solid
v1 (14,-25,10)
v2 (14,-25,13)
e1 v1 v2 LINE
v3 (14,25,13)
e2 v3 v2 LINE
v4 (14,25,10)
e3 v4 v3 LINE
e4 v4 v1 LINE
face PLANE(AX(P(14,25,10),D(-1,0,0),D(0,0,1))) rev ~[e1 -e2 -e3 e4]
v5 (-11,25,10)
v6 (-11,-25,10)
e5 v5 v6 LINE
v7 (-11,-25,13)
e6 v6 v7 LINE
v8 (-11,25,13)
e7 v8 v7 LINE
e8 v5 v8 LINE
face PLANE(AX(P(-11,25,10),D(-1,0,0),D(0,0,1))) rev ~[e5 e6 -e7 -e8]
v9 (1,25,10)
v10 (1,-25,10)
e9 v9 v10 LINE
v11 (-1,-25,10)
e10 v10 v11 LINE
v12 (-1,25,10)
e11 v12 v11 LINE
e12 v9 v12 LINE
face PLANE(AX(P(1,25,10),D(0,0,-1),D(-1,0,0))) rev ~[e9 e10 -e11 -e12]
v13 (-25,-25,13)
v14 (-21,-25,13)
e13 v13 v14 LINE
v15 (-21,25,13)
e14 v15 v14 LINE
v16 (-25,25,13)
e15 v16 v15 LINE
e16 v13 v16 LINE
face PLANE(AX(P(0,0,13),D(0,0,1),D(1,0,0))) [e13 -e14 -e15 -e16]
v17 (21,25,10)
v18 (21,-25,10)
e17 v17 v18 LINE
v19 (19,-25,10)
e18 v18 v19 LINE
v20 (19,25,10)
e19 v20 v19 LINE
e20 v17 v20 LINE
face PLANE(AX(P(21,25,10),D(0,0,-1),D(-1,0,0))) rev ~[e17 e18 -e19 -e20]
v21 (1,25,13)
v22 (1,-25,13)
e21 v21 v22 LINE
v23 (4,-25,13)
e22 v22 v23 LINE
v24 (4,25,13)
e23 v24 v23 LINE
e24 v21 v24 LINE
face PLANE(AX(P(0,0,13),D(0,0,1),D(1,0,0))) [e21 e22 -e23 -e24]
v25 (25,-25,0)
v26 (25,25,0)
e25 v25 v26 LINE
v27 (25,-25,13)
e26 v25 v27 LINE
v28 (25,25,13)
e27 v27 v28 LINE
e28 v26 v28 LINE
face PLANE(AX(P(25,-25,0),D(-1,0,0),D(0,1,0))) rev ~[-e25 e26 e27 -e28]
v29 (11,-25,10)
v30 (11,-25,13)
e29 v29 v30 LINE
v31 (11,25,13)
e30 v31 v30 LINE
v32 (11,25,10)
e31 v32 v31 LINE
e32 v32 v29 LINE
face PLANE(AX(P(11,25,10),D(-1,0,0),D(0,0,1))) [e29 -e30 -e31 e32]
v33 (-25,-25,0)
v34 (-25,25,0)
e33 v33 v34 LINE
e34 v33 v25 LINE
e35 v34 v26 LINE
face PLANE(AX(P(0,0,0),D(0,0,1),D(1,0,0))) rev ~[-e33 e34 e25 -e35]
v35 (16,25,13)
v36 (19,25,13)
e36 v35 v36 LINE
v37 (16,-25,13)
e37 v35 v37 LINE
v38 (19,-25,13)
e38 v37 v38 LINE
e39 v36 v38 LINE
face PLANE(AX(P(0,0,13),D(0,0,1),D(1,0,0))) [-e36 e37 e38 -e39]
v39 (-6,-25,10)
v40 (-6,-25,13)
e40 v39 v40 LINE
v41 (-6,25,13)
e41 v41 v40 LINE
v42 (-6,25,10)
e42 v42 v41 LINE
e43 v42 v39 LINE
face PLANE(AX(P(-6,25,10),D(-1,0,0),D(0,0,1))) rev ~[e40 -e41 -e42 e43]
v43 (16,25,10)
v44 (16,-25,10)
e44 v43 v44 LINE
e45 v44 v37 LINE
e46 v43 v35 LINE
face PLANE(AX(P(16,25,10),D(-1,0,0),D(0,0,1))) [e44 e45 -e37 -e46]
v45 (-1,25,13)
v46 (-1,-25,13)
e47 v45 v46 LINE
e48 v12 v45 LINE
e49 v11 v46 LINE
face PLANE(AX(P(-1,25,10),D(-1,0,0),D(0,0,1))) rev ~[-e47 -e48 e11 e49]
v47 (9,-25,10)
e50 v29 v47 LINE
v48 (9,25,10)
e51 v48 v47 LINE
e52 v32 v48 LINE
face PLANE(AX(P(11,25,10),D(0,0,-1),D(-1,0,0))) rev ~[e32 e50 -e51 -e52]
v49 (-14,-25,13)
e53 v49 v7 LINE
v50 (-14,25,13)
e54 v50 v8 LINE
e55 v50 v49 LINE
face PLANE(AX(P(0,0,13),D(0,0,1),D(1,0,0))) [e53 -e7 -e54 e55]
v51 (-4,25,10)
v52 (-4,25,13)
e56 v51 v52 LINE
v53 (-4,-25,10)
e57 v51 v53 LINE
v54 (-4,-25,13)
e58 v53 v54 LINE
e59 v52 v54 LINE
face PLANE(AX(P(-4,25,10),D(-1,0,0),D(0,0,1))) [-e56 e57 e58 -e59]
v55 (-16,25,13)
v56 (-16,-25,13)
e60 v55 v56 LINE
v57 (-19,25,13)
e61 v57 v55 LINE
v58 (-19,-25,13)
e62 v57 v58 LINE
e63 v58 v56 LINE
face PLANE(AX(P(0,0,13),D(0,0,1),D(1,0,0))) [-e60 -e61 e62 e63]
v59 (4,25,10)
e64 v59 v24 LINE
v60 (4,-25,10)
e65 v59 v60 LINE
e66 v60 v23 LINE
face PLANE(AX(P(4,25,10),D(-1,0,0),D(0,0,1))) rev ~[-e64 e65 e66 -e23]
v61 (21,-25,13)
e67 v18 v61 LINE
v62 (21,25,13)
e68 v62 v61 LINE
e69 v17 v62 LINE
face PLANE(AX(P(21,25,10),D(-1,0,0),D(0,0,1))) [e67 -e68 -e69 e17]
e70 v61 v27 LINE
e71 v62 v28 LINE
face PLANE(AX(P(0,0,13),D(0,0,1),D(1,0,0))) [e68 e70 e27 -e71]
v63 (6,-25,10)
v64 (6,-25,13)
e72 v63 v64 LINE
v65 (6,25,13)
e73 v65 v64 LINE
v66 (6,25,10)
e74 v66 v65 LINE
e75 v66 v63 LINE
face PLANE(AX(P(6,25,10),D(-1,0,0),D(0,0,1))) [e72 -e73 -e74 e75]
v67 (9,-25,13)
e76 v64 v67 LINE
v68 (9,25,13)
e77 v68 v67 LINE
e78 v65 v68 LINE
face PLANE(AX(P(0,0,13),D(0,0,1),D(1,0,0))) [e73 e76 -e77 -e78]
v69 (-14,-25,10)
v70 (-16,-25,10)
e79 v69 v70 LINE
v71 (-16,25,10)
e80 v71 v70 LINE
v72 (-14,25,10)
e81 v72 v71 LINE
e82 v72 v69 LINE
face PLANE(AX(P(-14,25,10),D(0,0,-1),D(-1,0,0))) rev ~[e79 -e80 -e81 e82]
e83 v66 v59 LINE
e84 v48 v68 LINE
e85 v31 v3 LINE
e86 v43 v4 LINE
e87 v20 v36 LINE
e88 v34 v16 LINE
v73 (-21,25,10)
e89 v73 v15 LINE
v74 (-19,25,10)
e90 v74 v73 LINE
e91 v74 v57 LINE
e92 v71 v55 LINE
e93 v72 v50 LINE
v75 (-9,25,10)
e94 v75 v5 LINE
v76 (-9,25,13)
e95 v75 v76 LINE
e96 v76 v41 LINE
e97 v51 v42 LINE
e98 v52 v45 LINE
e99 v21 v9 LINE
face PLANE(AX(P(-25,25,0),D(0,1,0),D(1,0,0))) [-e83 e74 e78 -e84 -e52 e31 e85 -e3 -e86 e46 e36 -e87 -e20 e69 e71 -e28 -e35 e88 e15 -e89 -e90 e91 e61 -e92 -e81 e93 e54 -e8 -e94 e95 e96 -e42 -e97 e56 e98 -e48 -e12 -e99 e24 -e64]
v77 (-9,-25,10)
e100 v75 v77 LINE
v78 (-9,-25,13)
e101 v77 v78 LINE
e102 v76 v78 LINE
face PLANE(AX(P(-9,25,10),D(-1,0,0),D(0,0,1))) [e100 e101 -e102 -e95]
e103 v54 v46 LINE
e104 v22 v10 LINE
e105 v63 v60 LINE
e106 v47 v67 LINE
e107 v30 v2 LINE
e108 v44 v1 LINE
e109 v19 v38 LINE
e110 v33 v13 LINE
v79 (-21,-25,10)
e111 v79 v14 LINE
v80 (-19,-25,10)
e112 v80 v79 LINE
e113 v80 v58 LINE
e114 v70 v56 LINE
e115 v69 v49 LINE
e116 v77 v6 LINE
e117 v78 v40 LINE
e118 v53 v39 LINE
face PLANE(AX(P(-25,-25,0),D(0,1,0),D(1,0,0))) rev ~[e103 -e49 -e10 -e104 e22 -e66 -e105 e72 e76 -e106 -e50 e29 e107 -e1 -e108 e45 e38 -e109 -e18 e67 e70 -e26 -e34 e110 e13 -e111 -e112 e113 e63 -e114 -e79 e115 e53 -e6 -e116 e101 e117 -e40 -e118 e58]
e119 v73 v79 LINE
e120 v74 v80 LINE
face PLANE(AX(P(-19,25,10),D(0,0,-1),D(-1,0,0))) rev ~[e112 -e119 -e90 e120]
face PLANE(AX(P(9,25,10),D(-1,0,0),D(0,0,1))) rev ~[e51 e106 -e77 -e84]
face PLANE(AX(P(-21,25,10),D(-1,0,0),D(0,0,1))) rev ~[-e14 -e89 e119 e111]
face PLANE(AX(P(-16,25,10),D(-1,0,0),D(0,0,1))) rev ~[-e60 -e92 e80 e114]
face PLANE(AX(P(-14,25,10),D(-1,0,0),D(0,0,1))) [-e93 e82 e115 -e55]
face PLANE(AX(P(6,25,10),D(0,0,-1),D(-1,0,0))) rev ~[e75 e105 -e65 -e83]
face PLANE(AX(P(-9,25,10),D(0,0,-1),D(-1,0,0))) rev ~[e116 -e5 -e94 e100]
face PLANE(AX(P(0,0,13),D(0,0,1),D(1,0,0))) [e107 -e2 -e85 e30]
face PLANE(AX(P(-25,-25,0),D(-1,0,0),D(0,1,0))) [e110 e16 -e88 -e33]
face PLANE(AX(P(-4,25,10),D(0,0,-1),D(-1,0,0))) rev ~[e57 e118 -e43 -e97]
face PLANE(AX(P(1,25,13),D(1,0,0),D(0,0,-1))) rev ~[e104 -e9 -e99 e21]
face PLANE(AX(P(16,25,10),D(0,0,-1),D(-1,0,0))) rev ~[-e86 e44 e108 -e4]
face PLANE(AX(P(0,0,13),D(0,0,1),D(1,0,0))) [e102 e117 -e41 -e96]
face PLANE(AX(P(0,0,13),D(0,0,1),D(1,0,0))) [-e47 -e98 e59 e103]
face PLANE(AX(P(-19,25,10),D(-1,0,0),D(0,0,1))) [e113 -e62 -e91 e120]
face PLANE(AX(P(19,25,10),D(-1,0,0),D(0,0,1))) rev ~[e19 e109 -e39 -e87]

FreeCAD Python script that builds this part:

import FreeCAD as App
import Part
import Sketcher
Q = App.Units.Quantity


def add_polygon(sketch, points):
    """Adds a closed chain of lines whose ends are joined by coincident constraints."""
    first, n = sketch.GeometryCount, len(points)
    for a, b in zip(points, points[1:] + points[:1]):
        sketch.addGeometry(Part.LineSegment(App.Vector(*a, 0), App.Vector(*b, 0)), False)
    for i in range(n):
        sketch.addConstraint(Sketcher.Constraint("Coincident", first + i, 2, first + (i + 1) % n, 1))

doc = App.newDocument("Part")
body = doc.addObject("PartDesign::Body", "Body")

# Sketch on XY plane
sketch1 = body.newObject("Sketcher::SketchObject", "Sketch")
sketch1.AttachmentSupport = (doc.getObject("XY_Plane"), [""])
sketch1.MapMode = "FlatFace"
add_polygon(sketch1, [(-25, 25), (-25, -25), (25, -25), (25, 25)])  # lines 0-3
sketch1.addConstraint([
    Sketcher.Constraint("Vertical", 0),
    Sketcher.Constraint("Horizontal", 1),
    Sketcher.Constraint("Vertical", 2),
    Sketcher.Constraint("Horizontal", 3),
    Sketcher.Constraint("Symmetric", 0, 2, 2, 2, -1, 1),
    Sketcher.Constraint("Equal", 3, 0),
    Sketcher.Constraint("DistanceX", 1, 1, 1, 2, Q("50 mm")),
])
pad1 = body.newObject("PartDesign::Pad", "Pad")
pad1.Profile = sketch1
pad1.Length = 13

# Sketch on XZ plane
sketch2 = body.newObject("Sketcher::SketchObject", "Sketch001")
sketch2.AttachmentSupport = (doc.getObject("XZ_Plane"), [""])
sketch2.MapMode = "FlatFace"
sketch2.AttachmentOffset = App.Placement(App.Vector(0, 0, -25), App.Rotation())
add_polygon(sketch2, [(21, 13), (21, 10), (19, 10), (19, 13)])  # lines 0-3
add_polygon(sketch2, [(16, 13), (16, 10), (14, 10), (14, 13)])  # lines 4-7
add_polygon(sketch2, [(11, 13), (11, 10), (9, 10), (9, 13)])  # lines 8-11
add_polygon(sketch2, [(6, 13), (6, 10), (4, 10), (4, 13)])  # lines 12-15
add_polygon(sketch2, [(-1, 13), (1, 13), (1, 10), (-1, 10)])  # lines 16-19
add_polygon(sketch2, [(-4, 13), (-4, 10), (-6, 10), (-6, 13)])  # lines 20-23
add_polygon(sketch2, [(-9, 13), (-9, 10), (-11, 10), (-11, 13)])  # lines 24-27
add_polygon(sketch2, [(-14, 13), (-14, 10), (-16, 10), (-16, 13)])  # lines 28-31
add_polygon(sketch2, [(-19, 13), (-19, 10), (-21, 10), (-21, 13)])  # lines 32-35
sketch2.addConstraint([
    Sketcher.Constraint("Vertical", 0),
    Sketcher.Constraint("Horizontal", 1),
    Sketcher.Constraint("Vertical", 2),
    Sketcher.Constraint("Horizontal", 3),
    Sketcher.Constraint("Vertical", 4),
    Sketcher.Constraint("Horizontal", 5),
    Sketcher.Constraint("Vertical", 6),
    Sketcher.Constraint("Horizontal", 7),
    Sketcher.Constraint("Vertical", 8),
    Sketcher.Constraint("Horizontal", 9),
    Sketcher.Constraint("Vertical", 10),
    Sketcher.Constraint("Horizontal", 11),
    Sketcher.Constraint("Vertical", 12),
    Sketcher.Constraint("Horizontal", 13),
    Sketcher.Constraint("Vertical", 14),
    Sketcher.Constraint("Horizontal", 15),
    Sketcher.Constraint("Horizontal", 16),
    Sketcher.Constraint("Vertical", 17),
    Sketcher.Constraint("Horizontal", 18),
    Sketcher.Constraint("Vertical", 19),
    Sketcher.Constraint("Vertical", 20),
    Sketcher.Constraint("Horizontal", 21),
    Sketcher.Constraint("Vertical", 22),
    Sketcher.Constraint("Horizontal", 23),
    Sketcher.Constraint("Vertical", 24),
    Sketcher.Constraint("Horizontal", 25),
    Sketcher.Constraint("Vertical", 26),
    Sketcher.Constraint("Horizontal", 27),
    Sketcher.Constraint("Vertical", 28),
    Sketcher.Constraint("Horizontal", 29),
    Sketcher.Constraint("Vertical", 30),
    Sketcher.Constraint("Horizontal", 31),
    Sketcher.Constraint("Vertical", 32),
    Sketcher.Constraint("Horizontal", 33),
    Sketcher.Constraint("Vertical", 34),
    Sketcher.Constraint("Horizontal", 35),
    Sketcher.Constraint("Symmetric", 13, 2, 20, 2, -2),
    Sketcher.Constraint("Symmetric", 15, 2, 22, 2, -2),
    Sketcher.Constraint("Symmetric", 9, 2, 24, 2, -2),
    Sketcher.Constraint("Symmetric", 11, 2, 26, 2, -2),
    Sketcher.Constraint("Symmetric", 5, 2, 28, 2, -2),
    Sketcher.Constraint("Symmetric", 7, 2, 30, 2, -2),
    Sketcher.Constraint("Symmetric", 1, 2, 32, 2, -2),
    Sketcher.Constraint("Symmetric", 3, 2, 34, 2, -2),
    Sketcher.Constraint("Horizontal", 1, 2, 4, 2),
    Sketcher.Constraint("Horizontal", 3, 2, 6, 2),
    Sketcher.Constraint("Horizontal", 5, 2, 8, 2),
    Sketcher.Constraint("Horizontal", 7, 2, 10, 2),
    Sketcher.Constraint("Horizontal", 9, 2, 12, 2),
    Sketcher.Constraint("Horizontal", 11, 2, 14, 2),
    Sketcher.Constraint("Horizontal", 15, 2, 16, 2),
    Sketcher.Constraint("Horizontal", 13, 2, 17, 2),
    Sketcher.Constraint("Equal", 3, 5),
    Sketcher.Constraint("Equal", 7, 9),
    Sketcher.Constraint("Equal", 11, 13),
    Sketcher.Constraint("Equal", 15, 16),
    Sketcher.Constraint("DistanceX", 1, 2, 1, 1, Q("2 mm")),
    Sketcher.Constraint("DistanceY", 0, 2, 0, 1, Q("3 mm")),
    Sketcher.Constraint("DistanceX", -1, 1, 0, 2, Q("21 mm")),
    Sketcher.Constraint("DistanceY", -1, 1, 0, 2, Q("10 mm")),
    Sketcher.Constraint("DistanceX", -1, 1, 4, 2, Q("16 mm")),
    Sketcher.Constraint("DistanceX", -1, 1, 8, 2, Q("11 mm")),
    Sketcher.Constraint("DistanceX", -1, 1, 12, 2, Q("6 mm")),
    Sketcher.Constraint("DistanceX", -1, 1, 16, 2, Q("1 mm")),
])
pocket1 = body.newObject("PartDesign::Pocket", "Pocket")
pocket1.Profile = sketch2
pocket1.Type = "ThroughAll"
pocket1.Reversed = True

doc.recompute()
